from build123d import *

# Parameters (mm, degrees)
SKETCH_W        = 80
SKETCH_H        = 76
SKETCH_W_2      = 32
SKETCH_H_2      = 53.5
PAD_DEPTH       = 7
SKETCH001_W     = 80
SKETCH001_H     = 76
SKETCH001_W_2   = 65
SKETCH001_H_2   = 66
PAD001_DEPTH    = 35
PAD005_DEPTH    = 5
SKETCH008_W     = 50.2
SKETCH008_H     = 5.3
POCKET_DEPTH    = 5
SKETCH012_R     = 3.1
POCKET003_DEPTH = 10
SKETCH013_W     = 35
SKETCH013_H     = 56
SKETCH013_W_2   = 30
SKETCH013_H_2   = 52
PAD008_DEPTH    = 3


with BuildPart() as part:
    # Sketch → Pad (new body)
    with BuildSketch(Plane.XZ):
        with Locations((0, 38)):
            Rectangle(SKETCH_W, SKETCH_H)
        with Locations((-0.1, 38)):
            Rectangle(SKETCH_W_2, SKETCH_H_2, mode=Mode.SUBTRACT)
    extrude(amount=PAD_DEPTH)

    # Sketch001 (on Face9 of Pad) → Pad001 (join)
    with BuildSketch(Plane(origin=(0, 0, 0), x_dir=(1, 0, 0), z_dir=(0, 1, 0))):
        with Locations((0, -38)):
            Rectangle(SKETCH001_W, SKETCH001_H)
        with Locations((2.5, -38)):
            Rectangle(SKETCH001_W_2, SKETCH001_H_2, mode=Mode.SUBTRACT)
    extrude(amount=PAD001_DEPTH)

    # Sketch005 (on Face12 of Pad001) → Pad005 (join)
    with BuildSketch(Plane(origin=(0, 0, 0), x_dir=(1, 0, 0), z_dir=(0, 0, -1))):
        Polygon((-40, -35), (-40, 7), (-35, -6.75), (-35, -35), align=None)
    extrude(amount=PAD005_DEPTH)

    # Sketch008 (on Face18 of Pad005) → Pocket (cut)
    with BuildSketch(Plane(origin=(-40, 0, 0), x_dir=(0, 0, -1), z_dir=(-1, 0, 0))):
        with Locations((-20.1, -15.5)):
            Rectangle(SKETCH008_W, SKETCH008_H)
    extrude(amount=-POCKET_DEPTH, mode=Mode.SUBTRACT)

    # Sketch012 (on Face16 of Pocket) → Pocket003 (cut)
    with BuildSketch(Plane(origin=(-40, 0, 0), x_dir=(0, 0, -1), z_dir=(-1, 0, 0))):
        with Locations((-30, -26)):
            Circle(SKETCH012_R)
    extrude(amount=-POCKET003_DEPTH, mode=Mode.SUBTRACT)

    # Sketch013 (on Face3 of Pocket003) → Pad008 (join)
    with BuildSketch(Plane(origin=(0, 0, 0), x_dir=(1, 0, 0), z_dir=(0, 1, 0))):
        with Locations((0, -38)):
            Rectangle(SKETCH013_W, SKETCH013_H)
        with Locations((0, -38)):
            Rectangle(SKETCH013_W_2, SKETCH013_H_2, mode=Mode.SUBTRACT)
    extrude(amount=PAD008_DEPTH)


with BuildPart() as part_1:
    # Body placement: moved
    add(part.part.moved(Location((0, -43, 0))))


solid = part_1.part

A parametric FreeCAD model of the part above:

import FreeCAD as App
import Part
import Sketcher
from FreeCAD import Vector
Q = App.Units.Quantity


def add_polygon(sketch, points):
    """Adds a closed chain of lines whose ends are joined by coincident constraints."""
    first, n = sketch.GeometryCount, len(points)
    for a, b in zip(points, points[1:] + points[:1]):
        sketch.addGeometry(Part.LineSegment(App.Vector(*a, 0), App.Vector(*b, 0)), False)
    for i in range(n):
        sketch.addConstraint(Sketcher.Constraint("Coincident", first + i, 2, first + (i + 1) % n, 1))

doc = App.newDocument("Part")
body = doc.addObject("PartDesign::Body", "Body")

sketch1 = body.newObject("Sketcher::SketchObject", "Sketch")
sketch1.AttachmentSupport = (doc.getObject("XZ_Plane"), [""])
sketch1.MapMode = "FlatFace"
add_polygon(sketch1, [(-40, 76), (-40, 0), (40, 0), (40, 76)])
add_polygon(sketch1, [(15.9, 11.25), (-16.1, 11.25), (-16.1, 64.75), (15.9, 64.75)])
sketch1.addConstraint([
    Sketcher.Constraint("Vertical", 0),
    Sketcher.Constraint("Horizontal", 1),
    Sketcher.Constraint("Vertical", 2),
    Sketcher.Constraint("Horizontal", 3),
    Sketcher.Constraint("Horizontal", 4),
    Sketcher.Constraint("Vertical", 5),
    Sketcher.Constraint("Horizontal", 6),
    Sketcher.Constraint("Vertical", 7),
    Sketcher.Constraint("Symmetric", 0, 2, 1, 2, -1, 1),
    Sketcher.Constraint("DistanceX", 1, 1, 1, 2, Q("80 mm")),
    Sketcher.Constraint("DistanceX", 4, 2, 4, 1, Q("32 mm")),
    Sketcher.Constraint("DistanceY", 0, 2, 0, 1, Q("76 mm")),
    Sketcher.Constraint("DistanceY", 5, 1, 5, 2, Q("53.5 mm")),
    Sketcher.Constraint("DistanceX", 4, 2, -1, 1, Q("16.1 mm")),
    Sketcher.Constraint("DistanceY", -1, 1, 4, 2, Q("11.25 mm")),
])
pad1 = body.newObject("PartDesign::Pad", "Pad")
pad1.Profile = sketch1
pad1.Length = 7

sketch2 = body.newObject("Sketcher::SketchObject", "Sketch001")
sketch2.AttachmentSupport = (doc.getObject("XZ_Plane"), [""])
sketch2.MapMode = "FlatFace"
add_polygon(sketch2, [(-40, 0), (-40, 76), (40, 76), (40, 0)])
add_polygon(sketch2, [(35, 71), (-30, 71), (-30, 5), (35, 5)])
sketch2.addConstraint([
    Sketcher.Constraint("Vertical", 0),
    Sketcher.Constraint("Horizontal", 1),
    Sketcher.Constraint("Vertical", 2),
    Sketcher.Constraint("Horizontal", 3),
    Sketcher.Constraint("Horizontal", 4),
    Sketcher.Constraint("Vertical", 5),
    Sketcher.Constraint("Horizontal", 6),
    Sketcher.Constraint("Vertical", 7),
    Sketcher.Constraint("Symmetric", 2, 2, 3, 2, -1, 1),
    Sketcher.Constraint("DistanceX", 1, 1, 1, 2, Q("80 mm")),
    Sketcher.Constraint("DistanceX", 4, 2, 4, 1, Q("65 mm")),
    Sketcher.Constraint("DistanceY", 0, 1, 0, 2, Q("76 mm")),
    Sketcher.Constraint("DistanceY", 5, 2, 5, 1, Q("66 mm")),
    Sketcher.Constraint("DistanceX", 4, 2, -1, 1, Q("30 mm")),
    Sketcher.Constraint("DistanceY", -1, 1, 4, 2, Q("71 mm")),
])
pad2 = body.newObject("PartDesign::Pad", "Pad001")
pad2.Profile = sketch2
pad2.Length = 35
pad2.Reversed = True

sketch3 = body.newObject("Sketcher::SketchObject", "Sketch002")
sketch3.AttachmentSupport = (doc.getObject("XY_Plane"), [""])
sketch3.MapMode = "FlatFace"
add_polygon(sketch3, [(-40, -7), (-40, 35), (-35, 35), (-35, 6.75)])
sketch3.addConstraint([
    Sketcher.Constraint("Vertical", 0),
    Sketcher.Constraint("Horizontal", 1),
    Sketcher.Constraint("Vertical", 2),
    Sketcher.Constraint("DistanceX", 1, 1, 1, 2, Q("5 mm")),
    Sketcher.Constraint("DistanceY", 0, 1, 0, 2, Q("42 mm")),
    Sketcher.Constraint("DistanceX", 0, 2, -1, 1, Q("40 mm")),
    Sketcher.Constraint("DistanceY", -1, 1, 0, 2, Q("35 mm")),
    Sketcher.Constraint("DistanceY", 2, 2, 2, 1, Q("28.25 mm")),
])
pad3 = body.newObject("PartDesign::Pad", "Pad002")
pad3.Profile = sketch3
pad3.Length = 5
pad3.Reversed = True

sketch4 = body.newObject("Sketcher::SketchObject", "Sketch003")
sketch4.AttachmentSupport = (doc.getObject("YZ_Plane"), [""])
sketch4.MapMode = "FlatFace"
sketch4.AttachmentOffset = App.Placement(Vector(0, 0, -40), App.Rotation())
add_polygon(sketch4, [(12.85, 45.2), (18.15, 45.2), (18.15, -5), (12.85, -5)])
sketch4.addConstraint([
    Sketcher.Constraint("Horizontal", 0),
    Sketcher.Constraint("Vertical", 1),
    Sketcher.Constraint("Horizontal", 2),
    Sketcher.Constraint("Vertical", 3),
    Sketcher.Constraint("DistanceX", 0, 1, 0, 2, Q("5.3 mm")),
    Sketcher.Constraint("DistanceY", 1, 2, 1, 1, Q("50.2 mm")),
    Sketcher.Constraint("DistanceY", 1, 2, -1, 1, Q("5 mm")),
    Sketcher.Constraint("DistanceX", -1, 1, 0, 2, Q("18.15 mm")),
])
pocket1 = body.newObject("PartDesign::Pocket", "Pocket")
pocket1.Profile = sketch4
pocket1.Length = 5
pocket1.Reversed = True

sketch5 = body.newObject("Sketcher::SketchObject", "Sketch004")
sketch5.AttachmentSupport = (doc.getObject("YZ_Plane"), [""])
sketch5.MapMode = "FlatFace"
sketch5.AttachmentOffset = App.Placement(Vector(0, 0, -40), App.Rotation())
sketch5.addGeometry(Part.Circle(Vector(26, 30, 0), Vector(0, 0, 1), 3.1), False)
sketch5.addConstraint([
    Sketcher.Constraint("Diameter", 0, Q("6.2 mm")),
    Sketcher.Constraint("DistanceX", -1, 1, 0, 3, Q("26 mm")),
    Sketcher.Constraint("DistanceY", -1, 1, 0, 3, Q("30 mm")),
])
pocket2 = body.newObject("PartDesign::Pocket", "Pocket001")
pocket2.Profile = sketch5
pocket2.Length = 10
pocket2.Reversed = True

sketch6 = body.newObject("Sketcher::SketchObject", "Sketch005")
sketch6.AttachmentSupport = (doc.getObject("XZ_Plane"), [""])
sketch6.MapMode = "FlatFace"
add_polygon(sketch6, [(-17.5, 10), (-17.5, 66), (17.5, 66), (17.5, 10)])
add_polygon(sketch6, [(15, 64), (-15, 64), (-15, 12), (15, 12)])
sketch6.addConstraint([
    Sketcher.Constraint("Vertical", 0),
    Sketcher.Constraint("Horizontal", 1),
    Sketcher.Constraint("Vertical", 2),
    Sketcher.Constraint("Horizontal", 3),
    Sketcher.Constraint("Horizontal", 4),
    Sketcher.Constraint("Vertical", 5),
    Sketcher.Constraint("Horizontal", 6),
    Sketcher.Constraint("Vertical", 7),
    Sketcher.Constraint("DistanceX", 1, 1, 1, 2, Q("35 mm")),
    Sketcher.Constraint("DistanceX", 4, 2, 4, 1, Q("30 mm")),
    Sketcher.Constraint("DistanceY", 0, 1, 0, 2, Q("56 mm")),
    Sketcher.Constraint("DistanceY", 5, 2, 5, 1, Q("52 mm")),
    Sketcher.Constraint("DistanceY", -1, 1, 0, 2, Q("66 mm")),
    Sketcher.Constraint("DistanceX", 4, 2, -1, 1, Q("15 mm")),
    Sketcher.Constraint("DistanceY", -1, 1, 4, 2, Q("64 mm")),
    Sketcher.Constraint("DistanceX", 0, 2, -1, 1, Q("17.5 mm")),
])
pad4 = body.newObject("PartDesign::Pad", "Pad003")
pad4.Profile = sketch6
pad4.Length = 3
pad4.Reversed = True
body2 = doc.addObject("PartDesign::Body", "Body001")
doc.recompute()

body.Placement = App.Placement(Vector(0, -43, 0), App.Rotation(Vector(0, 0, 1), 0))
boolean = body2.newObject("PartDesign::Boolean", "Boolean")
boolean.Type = "Fuse"
boolean.addObjects([body])

doc.recompute()
